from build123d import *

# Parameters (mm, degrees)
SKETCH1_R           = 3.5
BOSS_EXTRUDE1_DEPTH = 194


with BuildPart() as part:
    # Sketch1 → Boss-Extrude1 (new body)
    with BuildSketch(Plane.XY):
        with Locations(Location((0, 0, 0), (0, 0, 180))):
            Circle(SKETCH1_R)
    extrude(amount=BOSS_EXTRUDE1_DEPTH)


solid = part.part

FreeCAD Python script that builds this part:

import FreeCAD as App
import Part
import Sketcher

V = App.Vector
Q = App.Units.Quantity

doc = App.newDocument("Part")
params = doc.addObject("Spreadsheet::Sheet", "Params")
for row, (alias, value) in enumerate([
    ("sketch1_diameter", "7 mm"),
    ("pad1_length", "194 mm"),
], start=1):
    params.set(f"A{row}", alias)
    params.set(f"B{row}", "=" + value)
    params.setAlias(f"B{row}", alias)

body = doc.addObject("PartDesign::Body", "Body")

# Sketch on XY plane
sketch1 = doc.addObject("Sketcher::SketchObject", "Sketch")
body.addObject(sketch1)
sketch1.AttachmentSupport = (doc.XY_Plane, [""])
sketch1.MapMode = "FlatFace"
sketch1.addGeometry(Part.Circle(V(0, 0, 0), V(0, 0, 1), 3.5), False)
sketch1.addConstraint(Sketcher.Constraint("Coincident", 0, 3, -1, 1))
sketch1.addConstraint(Sketcher.Constraint("Diameter", 0, Q("7 mm")))
sketch1.setExpression("Constraints[1]", "Params.sketch1_diameter")
pad1 = doc.addObject("PartDesign::Pad", "Pad")
body.addObject(pad1)
pad1.Profile = sketch1
pad1.setExpression("Length", "Params.pad1_length")

doc.recompute()
